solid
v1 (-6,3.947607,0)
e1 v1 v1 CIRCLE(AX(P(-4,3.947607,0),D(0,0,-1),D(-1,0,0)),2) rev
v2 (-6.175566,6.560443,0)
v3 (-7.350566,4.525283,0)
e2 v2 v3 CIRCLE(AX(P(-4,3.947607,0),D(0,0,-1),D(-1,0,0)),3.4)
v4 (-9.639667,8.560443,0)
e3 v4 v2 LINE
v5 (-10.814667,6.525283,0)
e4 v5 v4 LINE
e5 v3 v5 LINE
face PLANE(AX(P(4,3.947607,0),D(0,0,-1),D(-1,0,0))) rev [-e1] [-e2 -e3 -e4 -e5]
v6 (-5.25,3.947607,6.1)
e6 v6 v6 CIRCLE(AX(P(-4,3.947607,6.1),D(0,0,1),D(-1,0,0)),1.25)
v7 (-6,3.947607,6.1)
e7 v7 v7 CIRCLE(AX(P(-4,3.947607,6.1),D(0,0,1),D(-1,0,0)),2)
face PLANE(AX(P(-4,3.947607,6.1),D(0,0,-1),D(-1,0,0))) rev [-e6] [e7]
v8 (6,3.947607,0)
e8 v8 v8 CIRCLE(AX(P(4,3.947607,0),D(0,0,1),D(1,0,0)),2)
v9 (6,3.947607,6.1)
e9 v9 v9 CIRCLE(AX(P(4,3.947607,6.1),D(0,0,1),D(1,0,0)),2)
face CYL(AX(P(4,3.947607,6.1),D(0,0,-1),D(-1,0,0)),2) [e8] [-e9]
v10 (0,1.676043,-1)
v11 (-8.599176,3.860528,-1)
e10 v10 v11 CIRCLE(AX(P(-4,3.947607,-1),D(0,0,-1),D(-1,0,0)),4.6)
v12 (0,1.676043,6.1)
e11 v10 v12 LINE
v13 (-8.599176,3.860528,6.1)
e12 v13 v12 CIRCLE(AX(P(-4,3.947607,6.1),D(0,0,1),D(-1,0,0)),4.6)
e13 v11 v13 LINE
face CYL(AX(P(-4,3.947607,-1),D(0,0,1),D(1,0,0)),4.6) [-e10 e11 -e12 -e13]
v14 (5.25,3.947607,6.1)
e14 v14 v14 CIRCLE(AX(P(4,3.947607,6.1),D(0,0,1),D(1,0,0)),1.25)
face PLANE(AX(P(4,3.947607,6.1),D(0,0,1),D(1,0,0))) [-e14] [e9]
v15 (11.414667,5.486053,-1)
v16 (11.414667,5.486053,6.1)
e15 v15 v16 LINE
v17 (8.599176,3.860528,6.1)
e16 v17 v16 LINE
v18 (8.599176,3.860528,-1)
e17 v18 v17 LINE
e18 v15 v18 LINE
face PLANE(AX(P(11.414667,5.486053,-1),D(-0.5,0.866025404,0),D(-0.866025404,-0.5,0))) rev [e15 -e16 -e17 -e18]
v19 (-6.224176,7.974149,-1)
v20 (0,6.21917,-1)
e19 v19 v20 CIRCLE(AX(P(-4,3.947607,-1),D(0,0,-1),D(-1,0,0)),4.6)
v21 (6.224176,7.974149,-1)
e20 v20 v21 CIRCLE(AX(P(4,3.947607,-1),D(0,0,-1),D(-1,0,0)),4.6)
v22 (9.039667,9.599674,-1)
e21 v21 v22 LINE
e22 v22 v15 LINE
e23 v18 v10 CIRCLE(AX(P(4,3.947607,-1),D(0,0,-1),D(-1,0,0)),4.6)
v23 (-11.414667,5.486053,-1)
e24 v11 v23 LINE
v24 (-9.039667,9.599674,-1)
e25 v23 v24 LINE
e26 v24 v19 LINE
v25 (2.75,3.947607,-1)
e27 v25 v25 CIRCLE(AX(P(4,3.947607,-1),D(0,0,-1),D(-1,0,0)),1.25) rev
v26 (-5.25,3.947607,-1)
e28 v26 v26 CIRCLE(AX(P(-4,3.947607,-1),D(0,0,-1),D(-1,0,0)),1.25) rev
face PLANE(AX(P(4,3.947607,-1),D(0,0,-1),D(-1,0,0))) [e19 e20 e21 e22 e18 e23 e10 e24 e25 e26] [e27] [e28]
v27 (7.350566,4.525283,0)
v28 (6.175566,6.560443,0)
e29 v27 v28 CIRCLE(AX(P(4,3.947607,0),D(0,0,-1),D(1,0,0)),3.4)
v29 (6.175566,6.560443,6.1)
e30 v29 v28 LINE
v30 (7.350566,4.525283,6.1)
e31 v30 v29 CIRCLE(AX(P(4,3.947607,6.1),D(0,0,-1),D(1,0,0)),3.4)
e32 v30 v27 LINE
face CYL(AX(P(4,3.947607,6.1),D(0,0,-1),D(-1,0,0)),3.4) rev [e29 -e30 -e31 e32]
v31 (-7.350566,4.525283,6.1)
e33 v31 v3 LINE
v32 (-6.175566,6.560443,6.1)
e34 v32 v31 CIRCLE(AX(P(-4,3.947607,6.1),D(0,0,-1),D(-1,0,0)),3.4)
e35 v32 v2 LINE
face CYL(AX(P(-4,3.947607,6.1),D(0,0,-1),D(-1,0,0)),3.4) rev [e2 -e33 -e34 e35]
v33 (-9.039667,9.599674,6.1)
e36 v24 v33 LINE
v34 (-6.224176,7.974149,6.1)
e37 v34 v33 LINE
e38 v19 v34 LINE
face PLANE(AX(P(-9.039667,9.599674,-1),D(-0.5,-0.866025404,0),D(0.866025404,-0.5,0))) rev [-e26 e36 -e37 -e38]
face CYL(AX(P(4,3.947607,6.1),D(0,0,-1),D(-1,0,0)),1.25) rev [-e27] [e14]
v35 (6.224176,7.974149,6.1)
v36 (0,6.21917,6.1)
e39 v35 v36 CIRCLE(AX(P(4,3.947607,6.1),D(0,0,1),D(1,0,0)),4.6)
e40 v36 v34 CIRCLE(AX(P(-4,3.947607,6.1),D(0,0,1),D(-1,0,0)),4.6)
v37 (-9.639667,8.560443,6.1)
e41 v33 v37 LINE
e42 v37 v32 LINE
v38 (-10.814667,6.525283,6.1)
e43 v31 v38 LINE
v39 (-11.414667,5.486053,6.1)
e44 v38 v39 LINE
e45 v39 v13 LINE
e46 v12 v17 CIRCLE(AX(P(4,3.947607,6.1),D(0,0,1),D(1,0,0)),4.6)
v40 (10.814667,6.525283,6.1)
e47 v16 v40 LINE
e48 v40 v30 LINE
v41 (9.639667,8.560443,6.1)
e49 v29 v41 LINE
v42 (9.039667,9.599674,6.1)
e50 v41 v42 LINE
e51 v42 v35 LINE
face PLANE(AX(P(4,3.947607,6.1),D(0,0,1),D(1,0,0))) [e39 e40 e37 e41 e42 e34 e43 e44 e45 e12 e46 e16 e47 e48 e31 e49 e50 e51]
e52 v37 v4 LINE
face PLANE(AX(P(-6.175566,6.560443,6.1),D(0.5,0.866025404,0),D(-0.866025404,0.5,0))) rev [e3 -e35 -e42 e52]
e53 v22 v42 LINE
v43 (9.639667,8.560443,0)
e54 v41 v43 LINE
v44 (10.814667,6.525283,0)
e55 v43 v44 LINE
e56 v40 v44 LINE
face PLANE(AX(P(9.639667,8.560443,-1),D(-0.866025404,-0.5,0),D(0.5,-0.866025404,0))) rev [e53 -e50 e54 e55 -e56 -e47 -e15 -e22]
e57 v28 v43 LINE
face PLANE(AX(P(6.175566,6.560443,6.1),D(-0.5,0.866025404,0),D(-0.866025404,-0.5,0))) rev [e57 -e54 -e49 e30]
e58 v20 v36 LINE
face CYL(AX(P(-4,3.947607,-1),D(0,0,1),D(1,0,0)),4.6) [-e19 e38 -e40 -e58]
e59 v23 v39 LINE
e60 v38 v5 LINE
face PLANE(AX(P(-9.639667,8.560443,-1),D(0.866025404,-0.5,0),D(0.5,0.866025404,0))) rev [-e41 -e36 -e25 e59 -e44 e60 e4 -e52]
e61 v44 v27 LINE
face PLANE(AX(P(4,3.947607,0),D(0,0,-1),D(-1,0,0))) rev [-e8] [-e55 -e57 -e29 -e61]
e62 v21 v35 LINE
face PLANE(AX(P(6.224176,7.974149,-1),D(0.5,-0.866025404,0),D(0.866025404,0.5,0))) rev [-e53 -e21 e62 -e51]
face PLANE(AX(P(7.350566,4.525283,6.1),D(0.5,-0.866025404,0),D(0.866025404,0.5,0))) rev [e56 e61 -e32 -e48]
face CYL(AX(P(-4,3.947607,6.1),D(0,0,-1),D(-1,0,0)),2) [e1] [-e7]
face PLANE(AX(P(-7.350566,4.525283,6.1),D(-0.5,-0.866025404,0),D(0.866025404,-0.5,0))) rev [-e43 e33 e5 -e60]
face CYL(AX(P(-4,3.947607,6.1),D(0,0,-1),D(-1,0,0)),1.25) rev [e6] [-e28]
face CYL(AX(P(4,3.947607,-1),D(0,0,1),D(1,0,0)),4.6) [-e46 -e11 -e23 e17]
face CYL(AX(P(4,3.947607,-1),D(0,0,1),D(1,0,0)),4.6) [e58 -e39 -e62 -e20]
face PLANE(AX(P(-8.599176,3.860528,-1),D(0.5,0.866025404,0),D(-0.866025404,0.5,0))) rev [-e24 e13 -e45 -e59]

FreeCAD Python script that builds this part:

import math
import FreeCAD as App
import Part
import Sketcher
Q = App.Units.Quantity

doc = App.newDocument("Part")
body = doc.addObject("PartDesign::Body", "Body")

sketch1 = body.newObject("Sketcher::SketchObject", "Sketch")
sketch1.AttachmentSupport = (doc.getObject("XY_Plane"), [""])
sketch1.MapMode = "FlatFace"
sketch1.addGeometry([
    Part.Circle(App.Vector(4, 3.947607, 0), App.Vector(0, 0, 1), 2),
    Part.Circle(App.Vector(4, 3.947607, 0), App.Vector(0, 0, 1), 1.25),
], False)
sketch1.addConstraint([
    Sketcher.Constraint("Coincident", 1, 3, 0, 3),
    Sketcher.Constraint("Diameter", 0, 4.0),
    Sketcher.Constraint("Diameter", 1, 2.5),
    Sketcher.Constraint("DistanceX", -1, 1, 0, 3, 4.0),
    Sketcher.Constraint("DistanceY", -1, 1, 0, 3, 3.947607),
])
pad1 = body.newObject("PartDesign::Pad", "Pad")
pad1.Profile = sketch1
pad1.Length = 6.1
body2 = doc.addObject("PartDesign::Body", "Body001")

sketch2 = body2.newObject("Sketcher::SketchObject", "Sketch001")
sketch2.AttachmentSupport = (doc.getObject("XY_Plane001"), [""])
sketch2.MapMode = "FlatFace"
sketch2.addGeometry([
    Part.Circle(App.Vector(-4, 3.947607, 0), App.Vector(0, 0, 1), 2),
    Part.Circle(App.Vector(-4, 3.947607, 0), App.Vector(0, 0, 1), 1.25),
], False)
sketch2.addConstraint([
    Sketcher.Constraint("Coincident", 1, 3, 0, 3),
    Sketcher.Constraint("Diameter", 0, 4.0),
    Sketcher.Constraint("Diameter", 1, 2.5),
    Sketcher.Constraint("DistanceX", 0, 3, -1, 1, 4.0),
    Sketcher.Constraint("DistanceY", -1, 1, 0, 3, 3.947607),
])
pad2 = body2.newObject("PartDesign::Pad", "Pad001")
pad2.Profile = sketch2
pad2.Length = 6.1
body3 = doc.addObject("PartDesign::Body", "Body002")

sketch3 = body3.newObject("Sketcher::SketchObject", "Sketch002")
sketch3.AttachmentSupport = (doc.getObject("XY_Plane002"), [""])
sketch3.MapMode = "FlatFace"
sketch3.addGeometry([
    Part.LineSegment(App.Vector(10.814667, 6.525283, 0), App.Vector(7.350566, 4.525283, 0)),
    Part.ArcOfCircle(Part.Circle(App.Vector(4, 3.947607, 0), App.Vector(0, 0, 1), 3.4), math.radians(50.217708), math.radians(369.782292)),
    Part.LineSegment(App.Vector(6.175566, 6.560443, 0), App.Vector(9.639667, 8.560443, 0)),
    Part.LineSegment(App.Vector(9.639667, 8.560443, 0), App.Vector(9.039667, 9.599674, 0)),
    Part.LineSegment(App.Vector(9.039667, 9.599674, 0), App.Vector(6.224176, 7.974149, 0)),
    Part.ArcOfCircle(Part.Circle(App.Vector(4, 3.947607, 0), App.Vector(0, 0, 1), 4.6), math.radians(61.084679), math.radians(150.408154)),
    Part.ArcOfCircle(Part.Circle(App.Vector(-4, 3.947607, 0), App.Vector(0, 0, 1), 4.6), math.radians(29.591846), math.radians(118.915321)),
    Part.LineSegment(App.Vector(-6.224176, 7.974149, 0), App.Vector(-9.039667, 9.599674, 0)),
    Part.LineSegment(App.Vector(-9.039667, 9.599674, 0), App.Vector(-9.639667, 8.560443, 0)),
    Part.LineSegment(App.Vector(-9.639667, 8.560443, 0), App.Vector(-6.175566, 6.560443, 0)),
    Part.ArcOfCircle(Part.Circle(App.Vector(-4, 3.947607, 0), App.Vector(0, 0, 1), 3.4), math.radians(170.217708), math.radians(489.782292)),
    Part.LineSegment(App.Vector(-7.350566, 4.525283, 0), App.Vector(-10.814667, 6.525283, 0)),
    Part.LineSegment(App.Vector(-10.814667, 6.525283, 0), App.Vector(-11.414667, 5.486053, 0)),
    Part.LineSegment(App.Vector(-11.414667, 5.486053, 0), App.Vector(-8.599176, 3.860528, 0)),
    Part.ArcOfCircle(Part.Circle(App.Vector(-4, 3.947607, 0), App.Vector(0, 0, 1), 4.6), math.radians(-178.915321), math.radians(-29.591846)),
    Part.ArcOfCircle(Part.Circle(App.Vector(4, 3.947607, 0), App.Vector(0, 0, 1), 4.6), math.radians(-150.408154), math.radians(-1.084679)),
    Part.LineSegment(App.Vector(8.599176, 3.860528, 0), App.Vector(11.414667, 5.486053, 0)),
    Part.LineSegment(App.Vector(11.414667, 5.486053, 0), App.Vector(10.814667, 6.525283, 0)),
], False)
sketch3.addConstraint([
    Sketcher.Constraint("Coincident", 0, 2, 1, 2),
    Sketcher.Constraint("Coincident", 1, 1, 2, 1),
    Sketcher.Constraint("Coincident", 2, 2, 3, 1),
    Sketcher.Constraint("Coincident", 3, 2, 4, 1),
    Sketcher.Constraint("Coincident", 4, 2, 5, 1),
    Sketcher.Constraint("Coincident", 5, 2, 6, 1),
    Sketcher.Constraint("Coincident", 6, 2, 7, 1),
    Sketcher.Constraint("Coincident", 7, 2, 8, 1),
    Sketcher.Constraint("Coincident", 8, 2, 9, 1),
    Sketcher.Constraint("Coincident", 9, 2, 10, 2),
    Sketcher.Constraint("Coincident", 10, 1, 11, 1),
    Sketcher.Constraint("Coincident", 11, 2, 12, 1),
    Sketcher.Constraint("Coincident", 12, 2, 13, 1),
    Sketcher.Constraint("Coincident", 13, 2, 14, 1),
    Sketcher.Constraint("Coincident", 14, 2, 15, 1),
    Sketcher.Constraint("Coincident", 15, 2, 16, 1),
    Sketcher.Constraint("Coincident", 16, 2, 17, 1),
    Sketcher.Constraint("Coincident", 17, 2, 0, 1),
    Sketcher.Constraint("Coincident", 5, 3, 1, 3),
    Sketcher.Constraint("Coincident", 10, 3, 6, 3),
    Sketcher.Constraint("Coincident", 14, 3, 6, 3),
    Sketcher.Constraint("Coincident", 15, 3, 1, 3),
    Sketcher.Constraint("Equal", 5, 6),
    Sketcher.Constraint("Equal", 1, 10),
    Sketcher.Constraint("Equal", 6, 14),
    Sketcher.Constraint("Equal", 14, 15),
    Sketcher.Constraint("Symmetric", 1, 3, 6, 3, -2),
    Sketcher.Constraint("Symmetric", 3, 2, 7, 2, -2),
    Sketcher.Constraint("Symmetric", 2, 2, 8, 2, -2),
    Sketcher.Constraint("Symmetric", 12, 2, 16, 2, -2),
    Sketcher.Constraint("Symmetric", 11, 2, 17, 2, -2),
    Sketcher.Constraint("Parallel", 0, 2),
    Sketcher.Constraint("Perpendicular", 2, 3),
    Sketcher.Constraint("Perpendicular", 3, 4),
    Sketcher.Constraint("Perpendicular", 7, 8),
    Sketcher.Constraint("Perpendicular", 8, 9),
    Sketcher.Constraint("Parallel", 9, 11),
    Sketcher.Constraint("Perpendicular", 11, 12),
    Sketcher.Constraint("Perpendicular", 12, 13),
    Sketcher.Constraint("Parallel", 4, 16),
    Sketcher.Constraint("Equal", 0, 2),
    Sketcher.Constraint("Equal", 8, 12),
    Sketcher.Constraint("Equal", 7, 13),
    Sketcher.Constraint("Radius", 1, 3.4),
    Sketcher.Constraint("Radius", 5, 4.6),
    Sketcher.Constraint("Angle", 0, Q("-150 deg")),
    Sketcher.Constraint("Distance", 0, 4.0),
    Sketcher.Constraint("DistanceX", -1, 1, 1, 3, 4.0),
    Sketcher.Constraint("Distance", 3, 1.2),
    Sketcher.Constraint("DistanceX", 1, 1, 0, 2, 1.175),
    Sketcher.Constraint("DistanceY", -1, 1, 4, 2, 7.974149),
])
pad3 = body3.newObject("PartDesign::Pad", "Pad002")
pad3.Profile = sketch3
pad3.Length = 6.1
body.AllowCompound = True
doc.recompute()

boolean = body.newObject("PartDesign::Boolean", "Boolean")
boolean.Type = "Fuse"
boolean.addObjects([body2])
doc.recompute()

boolean2 = body.newObject("PartDesign::Boolean", "Boolean001")
boolean2.Type = "Fuse"
boolean2.addObjects([body3])

sketch4 = body.newObject("Sketcher::SketchObject", "Sketch003")
sketch4.AttachmentSupport = (doc.getObject("XY_Plane"), [""])
sketch4.MapMode = "FlatFace"
sketch4.addGeometry([
    Part.LineSegment(App.Vector(9.639667, 8.560443, 0), App.Vector(10.814667, 6.525283, 0)),
    Part.LineSegment(App.Vector(10.814667, 6.525283, 0), App.Vector(11.414667, 5.486053, 0)),
    Part.LineSegment(App.Vector(11.414667, 5.486053, 0), App.Vector(8.599176, 3.860528, 0)),
    Part.ArcOfCircle(Part.Circle(App.Vector(4, 3.947607, 0), App.Vector(0, 0, 1), 4.6), math.radians(-150.408154), math.radians(-1.084679)),
    Part.ArcOfCircle(Part.Circle(App.Vector(-4, 3.947607, 0), App.Vector(0, 0, 1), 4.6), math.radians(-178.915321), math.radians(-29.591846)),
    Part.LineSegment(App.Vector(-8.599176, 3.860528, 0), App.Vector(-11.414667, 5.486053, 0)),
    Part.LineSegment(App.Vector(-11.414667, 5.486053, 0), App.Vector(-10.814667, 6.525283, 0)),
    Part.LineSegment(App.Vector(-10.814667, 6.525283, 0), App.Vector(-9.639667, 8.560443, 0)),
    Part.LineSegment(App.Vector(-9.639667, 8.560443, 0), App.Vector(-9.039667, 9.599674, 0)),
    Part.LineSegment(App.Vector(-9.039667, 9.599674, 0), App.Vector(-6.224176, 7.974149, 0)),
    Part.ArcOfCircle(Part.Circle(App.Vector(-4, 3.947607, 0), App.Vector(0, 0, 1), 4.6), math.radians(29.591846), math.radians(118.915321)),
    Part.ArcOfCircle(Part.Circle(App.Vector(4, 3.947607, 0), App.Vector(0, 0, 1), 4.6), math.radians(61.084679), math.radians(150.408154)),
    Part.LineSegment(App.Vector(6.224176, 7.974149, 0), App.Vector(9.039667, 9.599674, 0)),
    Part.LineSegment(App.Vector(9.039667, 9.599674, 0), App.Vector(9.639667, 8.560443, 0)),
], False)
sketch4.addConstraint([
    Sketcher.Constraint("Coincident", 0, 2, 1, 1),
    Sketcher.Constraint("Coincident", 1, 2, 2, 1),
    Sketcher.Constraint("Coincident", 2, 2, 3, 2),
    Sketcher.Constraint("Coincident", 3, 1, 4, 2),
    Sketcher.Constraint("Coincident", 4, 1, 5, 1),
    Sketcher.Constraint("Coincident", 5, 2, 6, 1),
    Sketcher.Constraint("Coincident", 6, 2, 7, 1),
    Sketcher.Constraint("Coincident", 7, 2, 8, 1),
    Sketcher.Constraint("Coincident", 8, 2, 9, 1),
    Sketcher.Constraint("Coincident", 9, 2, 10, 2),
    Sketcher.Constraint("Coincident", 10, 1, 11, 2),
    Sketcher.Constraint("Coincident", 11, 1, 12, 1),
    Sketcher.Constraint("Coincident", 12, 2, 13, 1),
    Sketcher.Constraint("Coincident", 13, 2, 0, 1),
    Sketcher.Constraint("Coincident", 10, 3, 4, 3),
    Sketcher.Constraint("Coincident", 11, 3, 3, 3),
    Sketcher.Constraint("Equal", 3, 4),
    Sketcher.Constraint("Equal", 4, 10),
    Sketcher.Constraint("Equal", 10, 11),
    Sketcher.Constraint("Symmetric", 3, 3, 4, 3, -2),
    Sketcher.Constraint("Symmetric", 1, 2, 5, 2, -2),
    Sketcher.Constraint("Symmetric", 0, 2, 6, 2, -2),
    Sketcher.Constraint("Symmetric", 8, 2, 12, 2, -2),
    Sketcher.Constraint("Symmetric", 7, 2, 13, 2, -2),
    Sketcher.Constraint("Parallel", 0, 1),
    Sketcher.Constraint("Perpendicular", 1, 2),
    Sketcher.Constraint("Perpendicular", 5, 6),
    Sketcher.Constraint("Parallel", 7, 8),
    Sketcher.Constraint("Perpendicular", 8, 9),
    Sketcher.Constraint("Parallel", 2, 12),
    Sketcher.Constraint("Equal", 6, 8),
    Sketcher.Constraint("Equal", 5, 9),
    Sketcher.Constraint("Radius", 3, 4.6),
    Sketcher.Constraint("Angle", 0, Q("-60 deg")),
    Sketcher.Constraint("DistanceX", -1, 1, 3, 3, 4.0),
    Sketcher.Constraint("Distance", 1, 1.2),
    Sketcher.Constraint("Distance", 0, 2.35),
    Sketcher.Constraint("Distance", 2, 3.251049),
    Sketcher.Constraint("DistanceY", -1, 1, 2, 2, 3.860528),
])
pad4 = body.newObject("PartDesign::Pad", "Pad003")
pad4.Profile = sketch4
pad4.Length = 1
pad4.Reversed = True

sketch5 = body.newObject("Sketcher::SketchObject", "Sketch004")
sketch5.AttachmentSupport = (doc.getObject("XY_Plane"), [""])
sketch5.MapMode = "FlatFace"
sketch5.addGeometry(Part.Circle(App.Vector(4, 3.947607, 0), App.Vector(0, 0, 1), 1.25), False)
sketch5.addConstraint([
    Sketcher.Constraint("Diameter", 0, 2.5),
    Sketcher.Constraint("DistanceX", -1, 1, 0, 3, 4.0),
    Sketcher.Constraint("DistanceY", -1, 1, 0, 3, 3.947607),
])
pocket1 = body.newObject("PartDesign::Pocket", "Pocket")
pocket1.Profile = sketch5
pocket1.Type = "UpToFirst"

sketch6 = body.newObject("Sketcher::SketchObject", "Sketch005")
sketch6.AttachmentSupport = (doc.getObject("XY_Plane"), [""])
sketch6.MapMode = "FlatFace"
sketch6.addGeometry(Part.Circle(App.Vector(-4, 3.947607, 0), App.Vector(0, 0, 1), 1.25), False)
sketch6.addConstraint([
    Sketcher.Constraint("Diameter", 0, 2.5),
    Sketcher.Constraint("DistanceX", 0, 3, -1, 1, 4.0),
    Sketcher.Constraint("DistanceY", -1, 1, 0, 3, 3.947607),
])
pocket2 = body.newObject("PartDesign::Pocket", "Pocket001")
pocket2.Profile = sketch6
pocket2.Type = "UpToFirst"

doc.recompute()
